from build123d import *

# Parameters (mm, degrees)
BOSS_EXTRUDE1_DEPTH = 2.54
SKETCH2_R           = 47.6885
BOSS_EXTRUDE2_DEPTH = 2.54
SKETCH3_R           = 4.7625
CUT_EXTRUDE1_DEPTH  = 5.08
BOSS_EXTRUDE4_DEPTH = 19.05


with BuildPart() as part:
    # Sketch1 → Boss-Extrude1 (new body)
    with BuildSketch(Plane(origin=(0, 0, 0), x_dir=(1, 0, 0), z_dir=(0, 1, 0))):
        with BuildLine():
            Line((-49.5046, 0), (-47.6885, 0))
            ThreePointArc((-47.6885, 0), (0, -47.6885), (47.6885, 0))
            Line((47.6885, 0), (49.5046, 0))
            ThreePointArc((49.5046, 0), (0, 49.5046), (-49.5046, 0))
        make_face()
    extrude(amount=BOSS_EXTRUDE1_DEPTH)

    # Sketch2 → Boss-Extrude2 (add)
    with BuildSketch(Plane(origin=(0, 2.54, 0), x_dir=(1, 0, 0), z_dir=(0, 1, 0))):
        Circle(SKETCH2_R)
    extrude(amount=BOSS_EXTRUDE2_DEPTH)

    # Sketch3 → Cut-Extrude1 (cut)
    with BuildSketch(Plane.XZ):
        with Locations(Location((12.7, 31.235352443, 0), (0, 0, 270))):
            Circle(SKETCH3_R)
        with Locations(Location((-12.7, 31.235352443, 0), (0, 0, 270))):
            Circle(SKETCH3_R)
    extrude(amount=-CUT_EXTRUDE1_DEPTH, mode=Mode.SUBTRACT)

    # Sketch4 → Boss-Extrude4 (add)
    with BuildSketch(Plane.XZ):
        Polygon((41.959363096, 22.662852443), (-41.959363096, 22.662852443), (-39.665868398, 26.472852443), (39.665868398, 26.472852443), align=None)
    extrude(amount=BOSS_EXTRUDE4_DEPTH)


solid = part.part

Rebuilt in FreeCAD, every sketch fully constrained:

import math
import FreeCAD as App
import Part
import Sketcher
from FreeCAD import Vector
Q = App.Units.Quantity


def add_polygon(sketch, points):
    """Adds a closed chain of lines whose ends are joined by coincident constraints."""
    first, n = sketch.GeometryCount, len(points)
    for a, b in zip(points, points[1:] + points[:1]):
        sketch.addGeometry(Part.LineSegment(App.Vector(*a, 0), App.Vector(*b, 0)), False)
    for i in range(n):
        sketch.addConstraint(Sketcher.Constraint("Coincident", first + i, 2, first + (i + 1) % n, 1))

doc = App.newDocument("Part")
body = doc.addObject("PartDesign::Body", "Body")

sketch1 = body.newObject("Sketcher::SketchObject", "Sketch")
sketch1.AttachmentSupport = (doc.getObject("XZ_Plane"), [""])
sketch1.MapMode = "FlatFace"
sketch1.addGeometry(Part.LineSegment(Vector(-49.5046, 0, 0), Vector(-47.6885, 0, 0)), False)
sketch1.addGeometry(Part.ArcOfCircle(Part.Circle(Vector(0, 0, 0), Vector(0, 0, 1), 47.6885), math.radians(0), math.radians(180)), False)
sketch1.addGeometry(Part.LineSegment(Vector(47.6885, 0, 0), Vector(49.5046, 0, 0)), False)
sketch1.addGeometry(Part.ArcOfCircle(Part.Circle(Vector(0, 0, 0), Vector(0, 0, 1), 49.5046), math.radians(180), math.radians(360)), False)
sketch1.addConstraint(Sketcher.Constraint("Coincident", 0, 2, 1, 2))
sketch1.addConstraint(Sketcher.Constraint("Coincident", 1, 1, 2, 1))
sketch1.addConstraint(Sketcher.Constraint("Coincident", 2, 2, 3, 2))
sketch1.addConstraint(Sketcher.Constraint("Coincident", 3, 1, 0, 1))
sketch1.addConstraint(Sketcher.Constraint("Horizontal", 0))
sketch1.addConstraint(Sketcher.Constraint("Horizontal", 2))
sketch1.addConstraint(Sketcher.Constraint("Coincident", 1, 3, -1, 1))
sketch1.addConstraint(Sketcher.Constraint("Coincident", 3, 3, -1, 1))
sketch1.addConstraint(Sketcher.Constraint("PointOnObject", 0, 2, -1))
sketch1.addConstraint(Sketcher.Constraint("PointOnObject", 1, 1, -1))
sketch1.addConstraint(Sketcher.Constraint("Radius", 3, Q("1.949 in")))
sketch1.addConstraint(Sketcher.Constraint("Radius", 1, Q("1.8775 in")))
pad1 = body.newObject("PartDesign::Pad", "Pad")
pad1.Profile = sketch1
pad1.Length = Q("0.1 in")
pad1.Reversed = True

sketch2 = body.newObject("Sketcher::SketchObject", "Sketch001")
sketch2.AttachmentSupport = (doc.getObject("XZ_Plane"), [""])
sketch2.MapMode = "FlatFace"
sketch2.AttachmentOffset = App.Placement(Vector(0, 0, -0.1 * 25.4), App.Rotation())
sketch2.addGeometry(Part.Circle(Vector(0, 0, 0), Vector(0, 0, 1), 47.6885), False)
sketch2.addConstraint(Sketcher.Constraint("Coincident", 0, 3, -1, 1))
sketch2.addConstraint(Sketcher.Constraint("Diameter", 0, Q("3.755 in")))
pad2 = body.newObject("PartDesign::Pad", "Pad001")
pad2.Profile = sketch2
pad2.Length = Q("0.1 in")
pad2.Reversed = True

sketch3 = body.newObject("Sketcher::SketchObject", "Sketch002")
sketch3.AttachmentSupport = (doc.getObject("XZ_Plane"), [""])
sketch3.MapMode = "FlatFace"
sketch3.addGeometry(Part.Circle(Vector(12.7, 31.235352, 0), Vector(0, 0, 1), 4.7625), False)
sketch3.addGeometry(Part.Circle(Vector(-12.7, 31.235352, 0), Vector(0, 0, 1), 4.7625), False)
sketch3.addConstraint(Sketcher.Constraint("Equal", 0, 1))
sketch3.addConstraint(Sketcher.Constraint("Symmetric", 0, 3, 1, 3, -2))
sketch3.addConstraint(Sketcher.Constraint("Diameter", 0, Q("0.375 in")))
sketch3.addConstraint(Sketcher.Constraint("DistanceX", 1, 3, 0, 3, Q("1 in")))
sketch3.addConstraint(Sketcher.Constraint("DistanceY", -1, 1, 0, 3, Q("31.235352 mm")))
pocket1 = body.newObject("PartDesign::Pocket", "Pocket")
pocket1.Profile = sketch3
pocket1.Length = Q("0.2 in")

sketch4 = body.newObject("Sketcher::SketchObject", "Sketch003")
sketch4.AttachmentSupport = (doc.getObject("XZ_Plane"), [""])
sketch4.MapMode = "FlatFace"
add_polygon(sketch4, [(-41.959363, 22.662852), (41.959363, 22.662852), (39.665868, 26.472852), (-39.665868, 26.472852)])
sketch4.addConstraint(Sketcher.Constraint("Horizontal", 0))
sketch4.addConstraint(Sketcher.Constraint("Horizontal", 2))
sketch4.addConstraint(Sketcher.Constraint("Equal", 1, 3))
sketch4.addConstraint(Sketcher.Constraint("DistanceY", 0, 2, 1, 2, Q("0.15 in")))
sketch4.addConstraint(Sketcher.Constraint("DistanceX", 0, 1, 0, 2, Q("83.918726 mm")))
sketch4.addConstraint(Sketcher.Constraint("DistanceX", 2, 2, 2, 1, Q("79.331737 mm")))
sketch4.addConstraint(Sketcher.Constraint("DistanceX", -1, 1, 1, 2, Q("39.665868 mm")))
sketch4.addConstraint(Sketcher.Constraint("DistanceY", -1, 1, 0, 2, Q("22.662852 mm")))
pad3 = body.newObject("PartDesign::Pad", "Pad002")
pad3.Profile = sketch4
pad3.Length = Q("0.75 in")

doc.recompute()
